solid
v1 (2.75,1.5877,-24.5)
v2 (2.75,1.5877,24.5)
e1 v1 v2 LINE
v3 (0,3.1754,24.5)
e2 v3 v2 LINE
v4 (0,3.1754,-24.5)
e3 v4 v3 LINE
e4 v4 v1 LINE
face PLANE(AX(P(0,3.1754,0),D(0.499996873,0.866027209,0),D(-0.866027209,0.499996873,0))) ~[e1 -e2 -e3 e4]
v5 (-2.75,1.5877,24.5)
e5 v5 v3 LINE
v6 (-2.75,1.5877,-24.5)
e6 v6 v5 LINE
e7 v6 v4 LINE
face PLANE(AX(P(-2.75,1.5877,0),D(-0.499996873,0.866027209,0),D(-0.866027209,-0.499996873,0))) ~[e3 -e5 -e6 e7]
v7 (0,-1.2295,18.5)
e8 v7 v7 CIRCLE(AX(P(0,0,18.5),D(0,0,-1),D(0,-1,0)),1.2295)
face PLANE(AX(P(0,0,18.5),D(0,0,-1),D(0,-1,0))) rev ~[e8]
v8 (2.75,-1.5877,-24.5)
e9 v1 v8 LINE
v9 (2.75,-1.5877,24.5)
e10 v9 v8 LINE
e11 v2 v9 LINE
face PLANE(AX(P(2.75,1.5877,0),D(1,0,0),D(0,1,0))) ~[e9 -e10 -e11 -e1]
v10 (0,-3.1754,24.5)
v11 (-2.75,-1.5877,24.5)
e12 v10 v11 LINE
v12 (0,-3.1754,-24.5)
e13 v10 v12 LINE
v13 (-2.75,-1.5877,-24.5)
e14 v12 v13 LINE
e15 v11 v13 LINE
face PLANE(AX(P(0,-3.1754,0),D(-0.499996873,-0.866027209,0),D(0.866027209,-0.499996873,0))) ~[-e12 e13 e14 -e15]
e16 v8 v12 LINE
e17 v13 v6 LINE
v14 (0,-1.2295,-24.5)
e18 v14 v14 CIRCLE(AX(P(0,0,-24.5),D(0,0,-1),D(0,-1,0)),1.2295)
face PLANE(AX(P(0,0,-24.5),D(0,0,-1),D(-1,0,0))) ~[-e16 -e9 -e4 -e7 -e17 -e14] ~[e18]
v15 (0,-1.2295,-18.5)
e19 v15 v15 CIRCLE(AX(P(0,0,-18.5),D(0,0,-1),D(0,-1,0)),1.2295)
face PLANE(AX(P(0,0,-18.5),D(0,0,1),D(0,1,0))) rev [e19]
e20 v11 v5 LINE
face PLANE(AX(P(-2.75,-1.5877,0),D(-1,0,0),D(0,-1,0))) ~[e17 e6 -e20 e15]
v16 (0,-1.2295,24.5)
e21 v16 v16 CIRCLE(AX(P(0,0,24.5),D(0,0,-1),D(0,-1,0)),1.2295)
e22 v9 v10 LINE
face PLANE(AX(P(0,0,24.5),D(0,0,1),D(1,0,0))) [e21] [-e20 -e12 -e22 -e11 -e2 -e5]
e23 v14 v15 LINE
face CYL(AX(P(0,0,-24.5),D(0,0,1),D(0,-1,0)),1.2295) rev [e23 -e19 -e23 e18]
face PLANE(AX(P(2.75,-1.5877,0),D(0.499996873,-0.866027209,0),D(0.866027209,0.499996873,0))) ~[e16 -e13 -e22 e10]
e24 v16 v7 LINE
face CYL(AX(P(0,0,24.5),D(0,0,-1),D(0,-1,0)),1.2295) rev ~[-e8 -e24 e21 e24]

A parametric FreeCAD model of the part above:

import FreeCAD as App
import Part
import Sketcher
from FreeCAD import Vector
Q = App.Units.Quantity


def add_polygon(sketch, points):
    """Adds a closed chain of lines whose ends are joined by coincident constraints."""
    first, n = sketch.GeometryCount, len(points)
    for a, b in zip(points, points[1:] + points[:1]):
        sketch.addGeometry(Part.LineSegment(App.Vector(*a, 0), App.Vector(*b, 0)), False)
    for i in range(n):
        sketch.addConstraint(Sketcher.Constraint("Coincident", first + i, 2, first + (i + 1) % n, 1))

doc = App.newDocument("Part")
body = doc.addObject("PartDesign::Body", "Body")

sketch1 = doc.addObject("Sketcher::SketchObject", "Sketch")
body.addObject(sketch1)
sketch1.AttachmentSupport = (doc.XY_Plane, [""])
sketch1.MapMode = "FlatFace"
add_polygon(sketch1, [(2.8, -1.6), (2.8, 1.6), (0, 3.2), (-2.8, 1.6), (-2.8, -1.6), (0, -3.2)])
sketch1.addConstraint([
    Sketcher.Constraint("Vertical", 0),
    Sketcher.Constraint("Vertical", 3),
    Sketcher.Constraint("Symmetric", 0, 2, 3, 2, -1, 1),
    Sketcher.Constraint("Symmetric", 1, 2, 4, 2, -1, 1),
    Sketcher.Constraint("PointOnObject", 1, 2, -2),
    Sketcher.Constraint("Parallel", 2, 5),
    Sketcher.Constraint("Horizontal", 0, 2, 2, 2),
    Sketcher.Constraint("DistanceX", 2, 2, 0, 2, Q("5.5 mm")),
    Sketcher.Constraint("Angle", 1, Q("150.0002 deg")),
    Sketcher.Constraint("DistanceY", 0, 1, 0, 2, Q("3.1754 mm")),
])
pad1 = doc.addObject("PartDesign::Pad", "Pad")
body.addObject(pad1)
pad1.Profile = sketch1
pad1.Length = 24.5

sketch2 = doc.addObject("Sketcher::SketchObject", "Sketch001")
body.addObject(sketch2)
sketch2.AttachmentSupport = (doc.XY_Plane, [""])
sketch2.MapMode = "FlatFace"
sketch2.AttachmentOffset = App.Placement(Vector(0, 0, 24.5), App.Rotation())
sketch2.addGeometry(Part.Circle(Vector(0, 0, 0), Vector(0, 0, 1), 1.2), False)
sketch2.addConstraint([
    Sketcher.Constraint("Coincident", 0, 3, -1, 1),
    Sketcher.Constraint("Diameter", 0, Q("2.459 mm")),
])
doc.recompute()
hole = doc.addObject("PartDesign::Hole", "Hole")
body.addObject(hole)
hole.Profile = sketch2
hole.ThreadType = "None"
hole.Diameter = 2.459
hole.DepthType = "Dimension"
hole.Depth = 6
hole.DrillPoint = "Flat"
doc.recompute()

mirrored = doc.addObject("PartDesign::Mirrored", "Mirrored")
body.addObject(mirrored)
mirrored.Originals = [pad1, hole]
mirrored.MirrorPlane = (doc.XY_Plane, [""])
body.Tip = mirrored

doc.recompute()
